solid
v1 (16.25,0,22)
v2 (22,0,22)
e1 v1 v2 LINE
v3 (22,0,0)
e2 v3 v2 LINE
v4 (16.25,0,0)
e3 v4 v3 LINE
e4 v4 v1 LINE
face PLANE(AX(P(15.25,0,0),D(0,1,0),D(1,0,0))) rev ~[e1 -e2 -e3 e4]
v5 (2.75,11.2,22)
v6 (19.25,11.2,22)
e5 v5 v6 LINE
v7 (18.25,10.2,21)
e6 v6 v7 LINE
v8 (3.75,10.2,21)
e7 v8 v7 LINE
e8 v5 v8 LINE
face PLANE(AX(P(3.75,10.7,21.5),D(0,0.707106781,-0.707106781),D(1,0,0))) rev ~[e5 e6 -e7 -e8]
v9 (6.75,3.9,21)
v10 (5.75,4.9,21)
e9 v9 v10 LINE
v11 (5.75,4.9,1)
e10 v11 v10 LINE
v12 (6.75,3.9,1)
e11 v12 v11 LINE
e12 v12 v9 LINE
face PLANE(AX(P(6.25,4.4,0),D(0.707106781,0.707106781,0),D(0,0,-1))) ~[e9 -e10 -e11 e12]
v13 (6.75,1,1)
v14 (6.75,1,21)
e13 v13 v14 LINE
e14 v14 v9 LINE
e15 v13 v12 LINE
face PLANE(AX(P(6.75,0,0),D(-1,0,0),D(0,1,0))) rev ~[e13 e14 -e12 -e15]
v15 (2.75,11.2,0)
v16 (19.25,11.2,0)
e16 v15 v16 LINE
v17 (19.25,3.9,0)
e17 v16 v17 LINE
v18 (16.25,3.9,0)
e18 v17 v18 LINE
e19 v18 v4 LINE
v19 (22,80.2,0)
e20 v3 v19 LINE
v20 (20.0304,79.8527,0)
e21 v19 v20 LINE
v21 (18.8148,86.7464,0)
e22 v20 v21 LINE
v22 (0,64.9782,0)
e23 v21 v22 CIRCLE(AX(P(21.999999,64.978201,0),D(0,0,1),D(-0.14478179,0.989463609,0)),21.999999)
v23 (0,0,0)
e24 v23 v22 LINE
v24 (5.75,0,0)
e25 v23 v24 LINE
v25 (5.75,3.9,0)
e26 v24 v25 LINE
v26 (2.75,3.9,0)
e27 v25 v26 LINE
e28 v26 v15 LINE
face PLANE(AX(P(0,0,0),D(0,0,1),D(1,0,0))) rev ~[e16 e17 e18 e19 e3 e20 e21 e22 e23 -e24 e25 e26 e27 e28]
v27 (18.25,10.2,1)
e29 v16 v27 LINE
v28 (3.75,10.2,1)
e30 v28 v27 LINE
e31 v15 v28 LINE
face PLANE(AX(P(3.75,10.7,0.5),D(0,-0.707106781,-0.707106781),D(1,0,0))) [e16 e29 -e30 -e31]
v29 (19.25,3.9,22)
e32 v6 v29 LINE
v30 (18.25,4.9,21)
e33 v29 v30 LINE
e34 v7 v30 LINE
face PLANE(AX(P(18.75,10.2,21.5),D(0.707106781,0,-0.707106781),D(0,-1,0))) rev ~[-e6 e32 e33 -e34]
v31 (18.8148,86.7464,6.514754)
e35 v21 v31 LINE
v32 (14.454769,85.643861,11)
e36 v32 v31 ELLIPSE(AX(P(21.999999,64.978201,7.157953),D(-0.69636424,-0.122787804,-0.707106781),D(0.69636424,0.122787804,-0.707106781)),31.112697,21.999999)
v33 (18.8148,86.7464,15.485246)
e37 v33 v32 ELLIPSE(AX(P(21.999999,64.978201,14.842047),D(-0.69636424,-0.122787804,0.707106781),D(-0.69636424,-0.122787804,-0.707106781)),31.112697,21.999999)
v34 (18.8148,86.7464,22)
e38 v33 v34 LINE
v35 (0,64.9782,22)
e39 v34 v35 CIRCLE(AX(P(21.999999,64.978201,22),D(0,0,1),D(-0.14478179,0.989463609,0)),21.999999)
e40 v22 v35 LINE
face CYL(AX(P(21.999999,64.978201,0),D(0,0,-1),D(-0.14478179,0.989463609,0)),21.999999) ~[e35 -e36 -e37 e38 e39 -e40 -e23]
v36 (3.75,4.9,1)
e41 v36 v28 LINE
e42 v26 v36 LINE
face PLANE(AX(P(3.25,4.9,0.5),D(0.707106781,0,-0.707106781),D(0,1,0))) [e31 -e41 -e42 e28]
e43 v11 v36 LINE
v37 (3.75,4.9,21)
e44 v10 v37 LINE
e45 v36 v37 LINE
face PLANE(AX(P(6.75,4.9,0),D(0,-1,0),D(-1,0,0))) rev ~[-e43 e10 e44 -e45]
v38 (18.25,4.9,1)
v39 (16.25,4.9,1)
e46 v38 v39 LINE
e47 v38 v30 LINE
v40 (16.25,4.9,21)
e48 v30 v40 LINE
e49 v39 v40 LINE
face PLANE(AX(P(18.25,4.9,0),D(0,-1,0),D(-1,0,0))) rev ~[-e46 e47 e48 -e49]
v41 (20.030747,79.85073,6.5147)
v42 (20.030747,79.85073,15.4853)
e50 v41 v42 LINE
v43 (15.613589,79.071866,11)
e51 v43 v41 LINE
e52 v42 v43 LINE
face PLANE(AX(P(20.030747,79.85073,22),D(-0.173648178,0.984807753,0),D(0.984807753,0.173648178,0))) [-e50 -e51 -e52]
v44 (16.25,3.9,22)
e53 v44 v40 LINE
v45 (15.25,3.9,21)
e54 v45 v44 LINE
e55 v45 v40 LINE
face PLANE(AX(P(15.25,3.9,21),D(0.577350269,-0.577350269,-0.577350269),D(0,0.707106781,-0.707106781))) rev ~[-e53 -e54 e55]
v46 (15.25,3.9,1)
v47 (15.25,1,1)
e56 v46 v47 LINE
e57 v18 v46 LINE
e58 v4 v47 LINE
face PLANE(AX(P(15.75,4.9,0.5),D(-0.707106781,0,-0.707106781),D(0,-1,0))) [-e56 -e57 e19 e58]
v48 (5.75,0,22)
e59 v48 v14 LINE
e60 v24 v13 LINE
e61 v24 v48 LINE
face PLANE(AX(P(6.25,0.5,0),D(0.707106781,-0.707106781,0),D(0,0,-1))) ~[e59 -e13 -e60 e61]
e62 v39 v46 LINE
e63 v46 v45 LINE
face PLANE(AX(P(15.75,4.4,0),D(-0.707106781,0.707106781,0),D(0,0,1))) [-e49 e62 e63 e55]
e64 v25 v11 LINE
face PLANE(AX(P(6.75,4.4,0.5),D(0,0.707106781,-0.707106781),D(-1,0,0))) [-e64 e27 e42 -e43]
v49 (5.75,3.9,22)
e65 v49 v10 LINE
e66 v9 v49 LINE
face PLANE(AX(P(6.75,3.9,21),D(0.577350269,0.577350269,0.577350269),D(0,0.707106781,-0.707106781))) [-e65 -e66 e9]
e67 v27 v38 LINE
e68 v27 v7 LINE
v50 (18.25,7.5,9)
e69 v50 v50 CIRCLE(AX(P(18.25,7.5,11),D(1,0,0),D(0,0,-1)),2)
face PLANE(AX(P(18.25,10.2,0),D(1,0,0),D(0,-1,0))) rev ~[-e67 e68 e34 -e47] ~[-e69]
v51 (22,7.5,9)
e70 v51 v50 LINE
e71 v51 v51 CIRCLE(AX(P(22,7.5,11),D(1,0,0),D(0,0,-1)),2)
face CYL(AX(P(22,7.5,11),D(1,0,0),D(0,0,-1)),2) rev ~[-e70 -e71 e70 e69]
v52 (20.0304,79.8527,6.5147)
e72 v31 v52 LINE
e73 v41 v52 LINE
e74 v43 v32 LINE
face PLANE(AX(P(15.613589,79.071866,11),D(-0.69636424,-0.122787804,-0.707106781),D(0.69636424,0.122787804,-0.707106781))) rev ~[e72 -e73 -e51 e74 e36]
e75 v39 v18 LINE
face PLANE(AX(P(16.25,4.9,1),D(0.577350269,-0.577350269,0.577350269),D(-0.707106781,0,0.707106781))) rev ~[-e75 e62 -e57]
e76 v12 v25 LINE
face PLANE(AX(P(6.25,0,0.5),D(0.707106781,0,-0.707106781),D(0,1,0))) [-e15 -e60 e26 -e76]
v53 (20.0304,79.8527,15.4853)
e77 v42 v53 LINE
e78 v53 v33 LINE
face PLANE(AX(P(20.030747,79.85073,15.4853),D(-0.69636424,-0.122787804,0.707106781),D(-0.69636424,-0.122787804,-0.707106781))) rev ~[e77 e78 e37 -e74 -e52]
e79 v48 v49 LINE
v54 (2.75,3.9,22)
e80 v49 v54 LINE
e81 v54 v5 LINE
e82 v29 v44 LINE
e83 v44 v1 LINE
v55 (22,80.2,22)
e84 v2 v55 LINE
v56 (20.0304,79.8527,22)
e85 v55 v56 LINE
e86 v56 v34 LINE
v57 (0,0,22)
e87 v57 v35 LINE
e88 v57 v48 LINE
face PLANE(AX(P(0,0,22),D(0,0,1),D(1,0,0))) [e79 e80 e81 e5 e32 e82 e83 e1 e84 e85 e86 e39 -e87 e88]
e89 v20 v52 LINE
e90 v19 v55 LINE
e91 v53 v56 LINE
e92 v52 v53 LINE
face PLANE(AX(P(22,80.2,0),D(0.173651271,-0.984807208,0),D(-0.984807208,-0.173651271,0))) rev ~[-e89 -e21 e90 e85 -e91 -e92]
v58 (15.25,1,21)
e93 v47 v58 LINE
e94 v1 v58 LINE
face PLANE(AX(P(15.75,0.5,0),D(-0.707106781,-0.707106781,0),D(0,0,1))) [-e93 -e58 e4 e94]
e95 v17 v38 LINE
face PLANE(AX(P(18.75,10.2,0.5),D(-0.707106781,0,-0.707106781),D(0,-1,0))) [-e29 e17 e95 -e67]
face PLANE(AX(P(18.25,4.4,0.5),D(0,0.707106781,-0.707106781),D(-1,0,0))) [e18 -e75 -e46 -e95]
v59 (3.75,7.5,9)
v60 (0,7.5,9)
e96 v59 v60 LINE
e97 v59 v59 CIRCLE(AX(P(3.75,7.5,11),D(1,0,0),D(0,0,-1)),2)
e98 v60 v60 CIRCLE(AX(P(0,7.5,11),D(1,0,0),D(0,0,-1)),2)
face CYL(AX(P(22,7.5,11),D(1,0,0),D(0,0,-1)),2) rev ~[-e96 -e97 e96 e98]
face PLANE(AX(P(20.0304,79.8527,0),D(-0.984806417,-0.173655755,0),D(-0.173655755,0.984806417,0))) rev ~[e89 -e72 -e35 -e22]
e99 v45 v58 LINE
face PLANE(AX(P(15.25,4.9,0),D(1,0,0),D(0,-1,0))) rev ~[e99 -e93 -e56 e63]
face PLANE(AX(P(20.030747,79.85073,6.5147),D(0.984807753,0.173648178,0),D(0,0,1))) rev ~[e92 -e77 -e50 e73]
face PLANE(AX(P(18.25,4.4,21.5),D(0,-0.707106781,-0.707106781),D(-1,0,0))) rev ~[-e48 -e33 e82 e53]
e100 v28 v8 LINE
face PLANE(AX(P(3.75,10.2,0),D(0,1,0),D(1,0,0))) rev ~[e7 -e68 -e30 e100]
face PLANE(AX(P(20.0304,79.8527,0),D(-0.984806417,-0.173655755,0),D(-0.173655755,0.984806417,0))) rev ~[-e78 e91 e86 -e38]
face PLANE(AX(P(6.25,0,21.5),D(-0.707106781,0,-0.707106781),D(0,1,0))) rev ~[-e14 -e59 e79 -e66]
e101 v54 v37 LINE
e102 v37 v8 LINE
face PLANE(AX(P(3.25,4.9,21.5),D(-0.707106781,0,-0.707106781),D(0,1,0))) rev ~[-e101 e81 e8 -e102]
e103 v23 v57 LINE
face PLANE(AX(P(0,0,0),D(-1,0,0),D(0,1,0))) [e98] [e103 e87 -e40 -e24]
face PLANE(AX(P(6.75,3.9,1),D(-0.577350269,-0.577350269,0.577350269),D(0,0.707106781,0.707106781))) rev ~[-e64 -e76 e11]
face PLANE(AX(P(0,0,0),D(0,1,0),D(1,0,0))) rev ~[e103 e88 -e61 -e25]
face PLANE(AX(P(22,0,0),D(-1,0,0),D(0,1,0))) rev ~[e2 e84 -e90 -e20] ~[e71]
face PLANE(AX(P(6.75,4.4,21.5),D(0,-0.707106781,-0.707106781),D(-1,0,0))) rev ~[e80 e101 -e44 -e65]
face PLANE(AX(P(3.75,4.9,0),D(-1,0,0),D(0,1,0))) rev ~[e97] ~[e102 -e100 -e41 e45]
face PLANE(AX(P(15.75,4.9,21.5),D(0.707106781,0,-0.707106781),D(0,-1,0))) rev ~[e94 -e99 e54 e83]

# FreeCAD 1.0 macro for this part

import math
import FreeCAD as App
import Part
import Sketcher
Q = App.Units.Quantity


def edges_at(feature, points):
    """Names of the edges that pass closest to the given points."""
    edges = feature.Shape.Edges
    near = lambda p: min(range(len(edges)), key=lambda i: edges[i].distToShape(Part.Vertex(*p))[0])
    return sorted({f"Edge{near(p) + 1}" for p in points})

doc = App.newDocument("Part")
body = doc.addObject("PartDesign::Body", "Body")

# Sketch on XY plane
sketch1 = body.newObject("Sketcher::SketchObject", "Sketch")
sketch1.AttachmentSupport = (doc.getObject("XY_Plane"), [""])
sketch1.MapMode = "FlatFace"
sketch1.addGeometry([
    Part.LineSegment(App.Vector(0, 65, 0), App.Vector(0, 0, 0)),  # 0
    Part.LineSegment(App.Vector(0, 0, 0), App.Vector(6.8, 0, 0)),  # 1
    Part.LineSegment(App.Vector(6.8, 0, 0), App.Vector(6.8, 4.9, 0)),  # 2
    Part.LineSegment(App.Vector(6.8, 4.9, 0), App.Vector(3.8, 4.9, 0)),  # 3
    Part.LineSegment(App.Vector(3.8, 4.9, 0), App.Vector(3.8, 10.2, 0)),  # 4
    Part.LineSegment(App.Vector(3.8, 10.2, 0), App.Vector(18.2, 10.2, 0)),  # 5
    Part.LineSegment(App.Vector(18.2, 10.2, 0), App.Vector(18.2, 4.9, 0)),  # 6
    Part.LineSegment(App.Vector(18.2, 4.9, 0), App.Vector(15.2, 4.9, 0)),  # 7
    Part.LineSegment(App.Vector(15.2, 4.9, 0), App.Vector(15.2, 0, 0)),  # 8
    Part.LineSegment(App.Vector(15.2, 0, 0), App.Vector(22, 0, 0)),  # 9
    Part.LineSegment(App.Vector(22, 0, 0), App.Vector(22, 80.2, 0)),  # 10
    Part.LineSegment(App.Vector(22, 80.2, 0), App.Vector(20, 79.9, 0)),  # 11
    Part.LineSegment(App.Vector(20, 79.9, 0), App.Vector(18.8, 86.7, 0)),  # 12
    Part.ArcOfCircle(Part.Circle(App.Vector(22, 65, 0), App.Vector(0, 0, 1), 22), math.radians(98), math.radians(180)),  # 13
], False)
sketch1.addConstraint([
    Sketcher.Constraint("Coincident", 0, 2, 1, 1),
    Sketcher.Constraint("Coincident", 1, 2, 2, 1),
    Sketcher.Constraint("Coincident", 2, 2, 3, 1),
    Sketcher.Constraint("Coincident", 3, 2, 4, 1),
    Sketcher.Constraint("Coincident", 4, 2, 5, 1),
    Sketcher.Constraint("Coincident", 5, 2, 6, 1),
    Sketcher.Constraint("Coincident", 6, 2, 7, 1),
    Sketcher.Constraint("Coincident", 7, 2, 8, 1),
    Sketcher.Constraint("Coincident", 8, 2, 9, 1),
    Sketcher.Constraint("Coincident", 9, 2, 10, 1),
    Sketcher.Constraint("Coincident", 10, 2, 11, 1),
    Sketcher.Constraint("Coincident", 11, 2, 12, 1),
    Sketcher.Constraint("Coincident", 12, 2, 13, 1),
    Sketcher.Constraint("Tangent", 13, 2, 0, 1),
    Sketcher.Constraint("Vertical", 0),
    Sketcher.Constraint("Horizontal", 1),
    Sketcher.Constraint("Vertical", 2),
    Sketcher.Constraint("Horizontal", 3),
    Sketcher.Constraint("Vertical", 4),
    Sketcher.Constraint("Horizontal", 5),
    Sketcher.Constraint("Vertical", 6),
    Sketcher.Constraint("Horizontal", 7),
    Sketcher.Constraint("Vertical", 8),
    Sketcher.Constraint("Horizontal", 9),
    Sketcher.Constraint("Vertical", 10),
    Sketcher.Constraint("Coincident", 0, 2, -1, 1),
    Sketcher.Constraint("PointOnObject", 8, 2, -1),
    Sketcher.Constraint("Perpendicular", 11, 12),
    Sketcher.Constraint("Horizontal", 3, 2, 6, 2),
    Sketcher.Constraint("Vertical", 13, 3, 9, 2),
    Sketcher.Constraint("Equal", 3, 7),
    Sketcher.Constraint("Equal", 1, 9),
    Sketcher.Constraint("Radius", 13, 22.0),
    Sketcher.Constraint("Distance", 11, 2.0),
    Sketcher.Constraint("Distance", 12, 7.0),
    Sketcher.Constraint("DistanceX", 5, 1, 5, 2, 14.5),
    Sketcher.Constraint("DistanceY", 2, 1, 2, 2, 4.9),
    Sketcher.Constraint("DistanceY", 4, 1, 4, 2, 5.3),
    Sketcher.Constraint("DistanceY", 5, 2, 10, 2, 70.0),
    Sketcher.Constraint("DistanceX", 2, 2, 7, 2, 8.5),
    Sketcher.Constraint("Angle", 11, Q("-169.9998 deg")),
])
pad1 = body.newObject("PartDesign::Pad", "Pad")
pad1.Profile = sketch1
pad1.Length = 22

# Sketch on YZ plane
sketch2 = body.newObject("Sketcher::SketchObject", "Sketch001")
sketch2.AttachmentSupport = (doc.getObject("YZ_Plane"), [""])
sketch2.MapMode = "FlatFace"
sketch2.AttachmentOffset = App.Placement(App.Vector(0, 0, 22), App.Rotation())
sketch2.addGeometry(Part.Circle(App.Vector(7.5, 11, 0), App.Vector(0, 0, 1), 2), False)
sketch2.addConstraint([
    Sketcher.Constraint("Diameter", 0, 4.0),
    Sketcher.Constraint("DistanceY", -1, 1, 0, 3, 11.0),
    Sketcher.Constraint("DistanceX", -1, 1, 0, 3, 7.5),
])
pocket1 = body.newObject("PartDesign::Pocket", "Pocket")
pocket1.Profile = sketch2
pocket1.Length = 22
doc.recompute()

chamfer = body.newObject("PartDesign::Chamfer", "Chamfer")
chamfer.Base = (pocket1, edges_at(pocket1, [
    (3.75, 7.55, 22),
    (11, 10.2, 22),
    (18.25, 7.55, 22),
    (16.75, 4.9, 22),
    (5.25, 4.9, 22),
    (6.75, 2.45, 22),
    (15.25, 2.45, 22),
    (18.25, 7.55, 0),
    (15.25, 2.45, 0),
    (16.75, 4.9, 0),
    (11, 10.2, 0),
    (3.75, 7.55, 0),
    (5.25, 4.9, 0),
    (6.75, 2.45, 0),
    (6.75, 4.9, 11),
    (15.25, 4.9, 11),
    (6.75, 0, 11),
    (15.25, 0, 11),
]))
chamfer.Size = 1

# Sketch on an angled plane
sketch3 = body.newObject("Sketcher::SketchObject", "Sketch002")
sketch3.Placement = App.Placement(App.Vector(20.0304, 79.8527, 22), App.Rotation(App.Vector(0.984807753, 0.173648178, 0), App.Vector(0, 0, -1), App.Vector(-0.173648178, 0.984807753, 0), "ZXY"))
sketch3.addGeometry([
    Part.LineSegment(App.Vector(-4, 11, 0), App.Vector(0, 7, 0)),
    Part.LineSegment(App.Vector(0, 7, 0), App.Vector(0, 15, 0)),
    Part.LineSegment(App.Vector(0, 15, 0), App.Vector(-4, 11, 0)),
], False)
sketch3.addConstraint([
    Sketcher.Constraint("Coincident", 0, 2, 1, 1),
    Sketcher.Constraint("Coincident", 1, 2, 2, 1),
    Sketcher.Constraint("Coincident", 2, 2, 0, 1),
    Sketcher.Constraint("Vertical", 1),
    Sketcher.Constraint("PointOnObject", 0, 2, -2),
    Sketcher.Constraint("Perpendicular", 0, 2),
    Sketcher.Constraint("Equal", 0, 2),
    Sketcher.Constraint("DistanceY", -1, 1, 2, 2, 11.0),
    Sketcher.Constraint("DistanceY", 1, 1, 1, 2, 8.9706),
])
pocket2 = body.newObject("PartDesign::Pocket", "Pocket001")
pocket2.Profile = sketch3
pocket2.Length = 10
pocket2.Reversed = True

doc.recompute()
